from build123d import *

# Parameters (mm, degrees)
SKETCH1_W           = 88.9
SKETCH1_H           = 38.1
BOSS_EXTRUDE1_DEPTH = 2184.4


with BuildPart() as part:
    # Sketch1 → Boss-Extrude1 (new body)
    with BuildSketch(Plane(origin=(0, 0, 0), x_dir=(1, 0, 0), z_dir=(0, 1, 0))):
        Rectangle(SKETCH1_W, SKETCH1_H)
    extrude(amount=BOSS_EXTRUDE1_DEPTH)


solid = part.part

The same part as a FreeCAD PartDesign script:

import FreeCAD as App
import Part
import Sketcher
from FreeCAD import Vector
Q = App.Units.Quantity


def add_polygon(sketch, points):
    """Adds a closed chain of lines whose ends are joined by coincident constraints."""
    first, n = sketch.GeometryCount, len(points)
    for a, b in zip(points, points[1:] + points[:1]):
        sketch.addGeometry(Part.LineSegment(App.Vector(*a, 0), App.Vector(*b, 0)), False)
    for i in range(n):
        sketch.addConstraint(Sketcher.Constraint("Coincident", first + i, 2, first + (i + 1) % n, 1))

doc = App.newDocument("Part")
body = doc.addObject("PartDesign::Body", "Body")

# Sketch on XZ plane
sketch1 = body.newObject("Sketcher::SketchObject", "Sketch")
sketch1.AttachmentSupport = (doc.getObject("XZ_Plane"), [""])
sketch1.MapMode = "FlatFace"
add_polygon(sketch1, [(-44.45, -19.05), (-44.45, 19.05), (44.45, 19.05), (44.45, -19.05)])  # lines 0-3
sketch1.addConstraint(Sketcher.Constraint("Vertical", 0))
sketch1.addConstraint(Sketcher.Constraint("Horizontal", 1))
sketch1.addConstraint(Sketcher.Constraint("Vertical", 2))
sketch1.addConstraint(Sketcher.Constraint("Horizontal", 3))
sketch1.addConstraint(Sketcher.Constraint("Symmetric", 0, 2, 2, 2, -1, 1))
sketch1.addConstraint(Sketcher.Constraint("DistanceX", 1, 1, 1, 2, Q("3.5 in")))
sketch1.addConstraint(Sketcher.Constraint("DistanceY", 0, 1, 0, 2, Q("1.5 in")))
pad1 = body.newObject("PartDesign::Pad", "Pad")
pad1.Profile = sketch1
pad1.Length = Q("86 in")
pad1.Reversed = True

doc.recompute()
